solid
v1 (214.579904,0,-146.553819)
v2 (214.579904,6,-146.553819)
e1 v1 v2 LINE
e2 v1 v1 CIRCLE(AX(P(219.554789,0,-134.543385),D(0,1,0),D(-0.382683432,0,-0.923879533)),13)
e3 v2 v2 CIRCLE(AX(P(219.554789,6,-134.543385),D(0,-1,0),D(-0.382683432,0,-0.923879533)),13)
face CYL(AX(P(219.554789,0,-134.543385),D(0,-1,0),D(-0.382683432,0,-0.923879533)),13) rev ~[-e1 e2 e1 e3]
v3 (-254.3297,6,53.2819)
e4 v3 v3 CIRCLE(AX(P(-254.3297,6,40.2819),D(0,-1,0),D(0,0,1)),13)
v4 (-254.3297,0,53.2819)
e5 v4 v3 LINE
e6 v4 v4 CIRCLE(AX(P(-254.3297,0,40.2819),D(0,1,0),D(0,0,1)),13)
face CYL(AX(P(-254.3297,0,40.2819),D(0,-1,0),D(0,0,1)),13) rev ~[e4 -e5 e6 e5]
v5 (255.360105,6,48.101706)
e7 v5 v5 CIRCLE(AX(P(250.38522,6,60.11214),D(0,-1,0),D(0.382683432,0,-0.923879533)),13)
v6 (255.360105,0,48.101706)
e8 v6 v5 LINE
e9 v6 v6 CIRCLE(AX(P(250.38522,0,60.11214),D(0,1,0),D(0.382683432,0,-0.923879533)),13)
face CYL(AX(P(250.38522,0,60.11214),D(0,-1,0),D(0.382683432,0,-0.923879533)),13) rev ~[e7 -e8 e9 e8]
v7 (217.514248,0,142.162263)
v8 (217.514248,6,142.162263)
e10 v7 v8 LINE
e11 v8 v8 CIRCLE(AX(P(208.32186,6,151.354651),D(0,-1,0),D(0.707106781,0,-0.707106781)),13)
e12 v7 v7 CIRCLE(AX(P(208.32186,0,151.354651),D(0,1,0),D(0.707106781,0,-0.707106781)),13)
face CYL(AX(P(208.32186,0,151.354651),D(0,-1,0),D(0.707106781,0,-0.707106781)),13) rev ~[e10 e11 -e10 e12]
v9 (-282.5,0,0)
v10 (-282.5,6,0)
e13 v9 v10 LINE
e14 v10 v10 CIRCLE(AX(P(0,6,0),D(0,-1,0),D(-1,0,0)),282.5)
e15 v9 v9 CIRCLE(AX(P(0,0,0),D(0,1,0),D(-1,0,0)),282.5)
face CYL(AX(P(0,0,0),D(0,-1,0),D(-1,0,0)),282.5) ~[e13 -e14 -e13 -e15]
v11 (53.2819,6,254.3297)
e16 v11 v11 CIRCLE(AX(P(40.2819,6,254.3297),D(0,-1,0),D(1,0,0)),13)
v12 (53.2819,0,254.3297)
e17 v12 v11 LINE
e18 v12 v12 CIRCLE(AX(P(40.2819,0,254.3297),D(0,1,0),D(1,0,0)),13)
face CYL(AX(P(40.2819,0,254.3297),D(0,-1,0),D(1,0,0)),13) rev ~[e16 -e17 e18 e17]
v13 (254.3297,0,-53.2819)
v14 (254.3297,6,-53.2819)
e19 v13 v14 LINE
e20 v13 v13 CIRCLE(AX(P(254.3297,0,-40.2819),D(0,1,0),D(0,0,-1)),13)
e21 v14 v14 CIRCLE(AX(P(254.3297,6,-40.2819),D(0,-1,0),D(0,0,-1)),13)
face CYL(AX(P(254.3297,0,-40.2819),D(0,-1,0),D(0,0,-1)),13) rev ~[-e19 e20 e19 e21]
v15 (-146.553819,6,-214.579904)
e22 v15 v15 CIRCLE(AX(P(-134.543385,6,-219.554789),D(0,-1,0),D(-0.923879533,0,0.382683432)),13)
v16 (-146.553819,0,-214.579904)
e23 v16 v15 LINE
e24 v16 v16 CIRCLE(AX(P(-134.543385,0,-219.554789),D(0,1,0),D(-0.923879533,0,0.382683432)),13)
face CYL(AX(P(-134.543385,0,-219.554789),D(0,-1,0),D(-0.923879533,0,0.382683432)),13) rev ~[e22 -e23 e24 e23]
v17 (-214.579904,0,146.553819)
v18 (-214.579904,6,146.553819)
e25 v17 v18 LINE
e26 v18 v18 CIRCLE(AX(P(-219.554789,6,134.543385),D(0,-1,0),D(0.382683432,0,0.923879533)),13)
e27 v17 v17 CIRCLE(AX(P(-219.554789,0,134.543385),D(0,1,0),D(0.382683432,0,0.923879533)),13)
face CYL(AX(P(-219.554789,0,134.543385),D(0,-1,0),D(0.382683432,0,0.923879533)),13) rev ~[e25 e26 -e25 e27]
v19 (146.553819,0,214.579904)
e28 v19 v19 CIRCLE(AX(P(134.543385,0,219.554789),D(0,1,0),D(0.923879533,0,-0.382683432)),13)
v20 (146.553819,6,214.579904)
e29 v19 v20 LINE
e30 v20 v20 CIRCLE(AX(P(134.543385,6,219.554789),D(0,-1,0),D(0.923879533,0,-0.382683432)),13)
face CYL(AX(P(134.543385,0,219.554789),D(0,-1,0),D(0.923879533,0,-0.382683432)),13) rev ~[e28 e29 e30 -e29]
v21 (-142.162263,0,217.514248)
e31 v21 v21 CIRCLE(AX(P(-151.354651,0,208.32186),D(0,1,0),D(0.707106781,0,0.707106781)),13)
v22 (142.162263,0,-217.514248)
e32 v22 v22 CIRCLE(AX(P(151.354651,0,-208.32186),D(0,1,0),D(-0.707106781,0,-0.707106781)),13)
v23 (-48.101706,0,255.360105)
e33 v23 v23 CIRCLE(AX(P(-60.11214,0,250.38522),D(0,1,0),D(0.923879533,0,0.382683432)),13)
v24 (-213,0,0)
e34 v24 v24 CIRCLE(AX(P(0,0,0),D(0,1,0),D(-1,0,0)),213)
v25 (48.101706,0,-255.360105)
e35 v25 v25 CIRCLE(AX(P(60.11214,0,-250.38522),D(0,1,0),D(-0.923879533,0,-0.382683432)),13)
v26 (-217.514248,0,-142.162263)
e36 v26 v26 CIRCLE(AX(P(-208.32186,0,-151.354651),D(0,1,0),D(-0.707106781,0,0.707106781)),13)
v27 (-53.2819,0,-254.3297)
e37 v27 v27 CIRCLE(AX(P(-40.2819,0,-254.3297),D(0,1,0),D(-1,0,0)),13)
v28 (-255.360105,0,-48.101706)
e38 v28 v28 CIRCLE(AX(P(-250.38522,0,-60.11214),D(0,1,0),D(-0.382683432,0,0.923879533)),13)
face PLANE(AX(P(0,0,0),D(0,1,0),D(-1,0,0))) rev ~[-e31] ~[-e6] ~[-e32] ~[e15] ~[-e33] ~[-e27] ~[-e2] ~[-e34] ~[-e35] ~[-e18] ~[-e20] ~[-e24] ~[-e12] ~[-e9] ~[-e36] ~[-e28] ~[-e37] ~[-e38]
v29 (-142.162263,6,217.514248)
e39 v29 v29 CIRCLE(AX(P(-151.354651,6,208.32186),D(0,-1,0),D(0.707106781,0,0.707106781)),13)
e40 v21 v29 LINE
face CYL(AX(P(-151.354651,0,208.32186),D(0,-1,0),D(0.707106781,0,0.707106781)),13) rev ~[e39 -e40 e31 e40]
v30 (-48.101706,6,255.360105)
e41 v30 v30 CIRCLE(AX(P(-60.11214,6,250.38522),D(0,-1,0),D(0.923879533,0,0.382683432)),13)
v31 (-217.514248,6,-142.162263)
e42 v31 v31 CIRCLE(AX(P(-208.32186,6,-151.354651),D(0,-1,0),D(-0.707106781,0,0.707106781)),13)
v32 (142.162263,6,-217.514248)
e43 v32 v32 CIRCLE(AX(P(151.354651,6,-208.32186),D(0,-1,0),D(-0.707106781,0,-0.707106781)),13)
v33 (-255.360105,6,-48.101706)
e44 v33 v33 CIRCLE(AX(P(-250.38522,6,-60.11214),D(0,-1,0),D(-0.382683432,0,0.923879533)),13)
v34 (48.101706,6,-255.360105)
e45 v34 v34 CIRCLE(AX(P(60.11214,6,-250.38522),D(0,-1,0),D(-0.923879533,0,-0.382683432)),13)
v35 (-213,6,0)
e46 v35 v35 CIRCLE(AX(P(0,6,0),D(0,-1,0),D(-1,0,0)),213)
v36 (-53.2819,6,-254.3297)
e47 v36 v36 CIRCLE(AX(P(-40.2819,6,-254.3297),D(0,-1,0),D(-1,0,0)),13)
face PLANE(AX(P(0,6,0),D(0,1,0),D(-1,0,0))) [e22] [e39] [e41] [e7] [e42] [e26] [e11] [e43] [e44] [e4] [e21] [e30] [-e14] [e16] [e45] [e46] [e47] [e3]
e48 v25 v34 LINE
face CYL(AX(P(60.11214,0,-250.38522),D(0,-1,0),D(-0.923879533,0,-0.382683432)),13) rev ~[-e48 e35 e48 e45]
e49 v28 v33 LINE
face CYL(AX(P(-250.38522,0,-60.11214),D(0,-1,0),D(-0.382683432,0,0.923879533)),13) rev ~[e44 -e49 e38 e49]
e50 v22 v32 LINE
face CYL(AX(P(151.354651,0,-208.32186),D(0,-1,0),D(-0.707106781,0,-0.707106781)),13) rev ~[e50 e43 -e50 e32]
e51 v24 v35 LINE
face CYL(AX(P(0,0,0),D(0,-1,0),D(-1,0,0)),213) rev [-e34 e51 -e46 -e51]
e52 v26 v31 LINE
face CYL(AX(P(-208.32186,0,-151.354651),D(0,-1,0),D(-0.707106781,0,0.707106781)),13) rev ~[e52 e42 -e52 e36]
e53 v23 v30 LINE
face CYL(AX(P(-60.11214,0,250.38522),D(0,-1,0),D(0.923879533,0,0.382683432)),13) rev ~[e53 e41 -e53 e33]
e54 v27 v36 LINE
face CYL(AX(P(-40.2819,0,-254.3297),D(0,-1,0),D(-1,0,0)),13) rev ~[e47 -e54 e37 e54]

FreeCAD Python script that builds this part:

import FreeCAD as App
import Part
import Sketcher
Q = App.Units.Quantity

doc = App.newDocument("Part")
body = doc.addObject("PartDesign::Body", "Body")

sketch1 = body.newObject("Sketcher::SketchObject", "Sketch")
sketch1.AttachmentSupport = (doc.getObject("XZ_Plane"), [""])
sketch1.MapMode = "FlatFace"
sketch1.addGeometry([
    Part.Circle(App.Vector(0, 0, 0), App.Vector(0, 0, 1), 282),
    Part.Circle(App.Vector(0, 0, 0), App.Vector(0, 0, 1), 213),
], False)
sketch1.addConstraint([
    Sketcher.Constraint("Coincident", 0, 3, -1, 1),
    Sketcher.Constraint("Coincident", 1, 3, -1, 1),
    Sketcher.Constraint("Diameter", 0, Q("565 mm")),
    Sketcher.Constraint("Diameter", 1, Q("426 mm")),
])
pad1 = body.newObject("PartDesign::Pad", "Pad")
pad1.Profile = sketch1
pad1.Length = 6
pad1.Reversed = True

sketch2 = body.newObject("Sketcher::SketchObject", "Sketch001")
sketch2.AttachmentSupport = (doc.getObject("XZ_Plane"), [""])
sketch2.MapMode = "FlatFace"
sketch2.addGeometry(Part.Circle(App.Vector(40, 254, 0), App.Vector(0, 0, 1), 13), False)
sketch2.addConstraint([
    Sketcher.Constraint("Diameter", 0, Q("26 mm")),
    Sketcher.Constraint("DistanceX", -1, 1, 0, 3, Q("40.282 mm")),
    Sketcher.Constraint("DistanceY", -1, 1, 0, 3, Q("254.3297 mm")),
])
pocket1 = body.newObject("PartDesign::Pocket", "Pocket")
pocket1.Profile = sketch2
pocket1.Length = 6
doc.recompute()

polarpattern = body.newObject("PartDesign::PolarPattern", "PolarPattern")
polarpattern.Originals = [pocket1]
polarpattern.Axis = (doc.getObject("Y_Axis"), [""])
polarpattern.Angle = 360
polarpattern.Occurrences = 16
body.Tip = polarpattern

doc.recompute()
